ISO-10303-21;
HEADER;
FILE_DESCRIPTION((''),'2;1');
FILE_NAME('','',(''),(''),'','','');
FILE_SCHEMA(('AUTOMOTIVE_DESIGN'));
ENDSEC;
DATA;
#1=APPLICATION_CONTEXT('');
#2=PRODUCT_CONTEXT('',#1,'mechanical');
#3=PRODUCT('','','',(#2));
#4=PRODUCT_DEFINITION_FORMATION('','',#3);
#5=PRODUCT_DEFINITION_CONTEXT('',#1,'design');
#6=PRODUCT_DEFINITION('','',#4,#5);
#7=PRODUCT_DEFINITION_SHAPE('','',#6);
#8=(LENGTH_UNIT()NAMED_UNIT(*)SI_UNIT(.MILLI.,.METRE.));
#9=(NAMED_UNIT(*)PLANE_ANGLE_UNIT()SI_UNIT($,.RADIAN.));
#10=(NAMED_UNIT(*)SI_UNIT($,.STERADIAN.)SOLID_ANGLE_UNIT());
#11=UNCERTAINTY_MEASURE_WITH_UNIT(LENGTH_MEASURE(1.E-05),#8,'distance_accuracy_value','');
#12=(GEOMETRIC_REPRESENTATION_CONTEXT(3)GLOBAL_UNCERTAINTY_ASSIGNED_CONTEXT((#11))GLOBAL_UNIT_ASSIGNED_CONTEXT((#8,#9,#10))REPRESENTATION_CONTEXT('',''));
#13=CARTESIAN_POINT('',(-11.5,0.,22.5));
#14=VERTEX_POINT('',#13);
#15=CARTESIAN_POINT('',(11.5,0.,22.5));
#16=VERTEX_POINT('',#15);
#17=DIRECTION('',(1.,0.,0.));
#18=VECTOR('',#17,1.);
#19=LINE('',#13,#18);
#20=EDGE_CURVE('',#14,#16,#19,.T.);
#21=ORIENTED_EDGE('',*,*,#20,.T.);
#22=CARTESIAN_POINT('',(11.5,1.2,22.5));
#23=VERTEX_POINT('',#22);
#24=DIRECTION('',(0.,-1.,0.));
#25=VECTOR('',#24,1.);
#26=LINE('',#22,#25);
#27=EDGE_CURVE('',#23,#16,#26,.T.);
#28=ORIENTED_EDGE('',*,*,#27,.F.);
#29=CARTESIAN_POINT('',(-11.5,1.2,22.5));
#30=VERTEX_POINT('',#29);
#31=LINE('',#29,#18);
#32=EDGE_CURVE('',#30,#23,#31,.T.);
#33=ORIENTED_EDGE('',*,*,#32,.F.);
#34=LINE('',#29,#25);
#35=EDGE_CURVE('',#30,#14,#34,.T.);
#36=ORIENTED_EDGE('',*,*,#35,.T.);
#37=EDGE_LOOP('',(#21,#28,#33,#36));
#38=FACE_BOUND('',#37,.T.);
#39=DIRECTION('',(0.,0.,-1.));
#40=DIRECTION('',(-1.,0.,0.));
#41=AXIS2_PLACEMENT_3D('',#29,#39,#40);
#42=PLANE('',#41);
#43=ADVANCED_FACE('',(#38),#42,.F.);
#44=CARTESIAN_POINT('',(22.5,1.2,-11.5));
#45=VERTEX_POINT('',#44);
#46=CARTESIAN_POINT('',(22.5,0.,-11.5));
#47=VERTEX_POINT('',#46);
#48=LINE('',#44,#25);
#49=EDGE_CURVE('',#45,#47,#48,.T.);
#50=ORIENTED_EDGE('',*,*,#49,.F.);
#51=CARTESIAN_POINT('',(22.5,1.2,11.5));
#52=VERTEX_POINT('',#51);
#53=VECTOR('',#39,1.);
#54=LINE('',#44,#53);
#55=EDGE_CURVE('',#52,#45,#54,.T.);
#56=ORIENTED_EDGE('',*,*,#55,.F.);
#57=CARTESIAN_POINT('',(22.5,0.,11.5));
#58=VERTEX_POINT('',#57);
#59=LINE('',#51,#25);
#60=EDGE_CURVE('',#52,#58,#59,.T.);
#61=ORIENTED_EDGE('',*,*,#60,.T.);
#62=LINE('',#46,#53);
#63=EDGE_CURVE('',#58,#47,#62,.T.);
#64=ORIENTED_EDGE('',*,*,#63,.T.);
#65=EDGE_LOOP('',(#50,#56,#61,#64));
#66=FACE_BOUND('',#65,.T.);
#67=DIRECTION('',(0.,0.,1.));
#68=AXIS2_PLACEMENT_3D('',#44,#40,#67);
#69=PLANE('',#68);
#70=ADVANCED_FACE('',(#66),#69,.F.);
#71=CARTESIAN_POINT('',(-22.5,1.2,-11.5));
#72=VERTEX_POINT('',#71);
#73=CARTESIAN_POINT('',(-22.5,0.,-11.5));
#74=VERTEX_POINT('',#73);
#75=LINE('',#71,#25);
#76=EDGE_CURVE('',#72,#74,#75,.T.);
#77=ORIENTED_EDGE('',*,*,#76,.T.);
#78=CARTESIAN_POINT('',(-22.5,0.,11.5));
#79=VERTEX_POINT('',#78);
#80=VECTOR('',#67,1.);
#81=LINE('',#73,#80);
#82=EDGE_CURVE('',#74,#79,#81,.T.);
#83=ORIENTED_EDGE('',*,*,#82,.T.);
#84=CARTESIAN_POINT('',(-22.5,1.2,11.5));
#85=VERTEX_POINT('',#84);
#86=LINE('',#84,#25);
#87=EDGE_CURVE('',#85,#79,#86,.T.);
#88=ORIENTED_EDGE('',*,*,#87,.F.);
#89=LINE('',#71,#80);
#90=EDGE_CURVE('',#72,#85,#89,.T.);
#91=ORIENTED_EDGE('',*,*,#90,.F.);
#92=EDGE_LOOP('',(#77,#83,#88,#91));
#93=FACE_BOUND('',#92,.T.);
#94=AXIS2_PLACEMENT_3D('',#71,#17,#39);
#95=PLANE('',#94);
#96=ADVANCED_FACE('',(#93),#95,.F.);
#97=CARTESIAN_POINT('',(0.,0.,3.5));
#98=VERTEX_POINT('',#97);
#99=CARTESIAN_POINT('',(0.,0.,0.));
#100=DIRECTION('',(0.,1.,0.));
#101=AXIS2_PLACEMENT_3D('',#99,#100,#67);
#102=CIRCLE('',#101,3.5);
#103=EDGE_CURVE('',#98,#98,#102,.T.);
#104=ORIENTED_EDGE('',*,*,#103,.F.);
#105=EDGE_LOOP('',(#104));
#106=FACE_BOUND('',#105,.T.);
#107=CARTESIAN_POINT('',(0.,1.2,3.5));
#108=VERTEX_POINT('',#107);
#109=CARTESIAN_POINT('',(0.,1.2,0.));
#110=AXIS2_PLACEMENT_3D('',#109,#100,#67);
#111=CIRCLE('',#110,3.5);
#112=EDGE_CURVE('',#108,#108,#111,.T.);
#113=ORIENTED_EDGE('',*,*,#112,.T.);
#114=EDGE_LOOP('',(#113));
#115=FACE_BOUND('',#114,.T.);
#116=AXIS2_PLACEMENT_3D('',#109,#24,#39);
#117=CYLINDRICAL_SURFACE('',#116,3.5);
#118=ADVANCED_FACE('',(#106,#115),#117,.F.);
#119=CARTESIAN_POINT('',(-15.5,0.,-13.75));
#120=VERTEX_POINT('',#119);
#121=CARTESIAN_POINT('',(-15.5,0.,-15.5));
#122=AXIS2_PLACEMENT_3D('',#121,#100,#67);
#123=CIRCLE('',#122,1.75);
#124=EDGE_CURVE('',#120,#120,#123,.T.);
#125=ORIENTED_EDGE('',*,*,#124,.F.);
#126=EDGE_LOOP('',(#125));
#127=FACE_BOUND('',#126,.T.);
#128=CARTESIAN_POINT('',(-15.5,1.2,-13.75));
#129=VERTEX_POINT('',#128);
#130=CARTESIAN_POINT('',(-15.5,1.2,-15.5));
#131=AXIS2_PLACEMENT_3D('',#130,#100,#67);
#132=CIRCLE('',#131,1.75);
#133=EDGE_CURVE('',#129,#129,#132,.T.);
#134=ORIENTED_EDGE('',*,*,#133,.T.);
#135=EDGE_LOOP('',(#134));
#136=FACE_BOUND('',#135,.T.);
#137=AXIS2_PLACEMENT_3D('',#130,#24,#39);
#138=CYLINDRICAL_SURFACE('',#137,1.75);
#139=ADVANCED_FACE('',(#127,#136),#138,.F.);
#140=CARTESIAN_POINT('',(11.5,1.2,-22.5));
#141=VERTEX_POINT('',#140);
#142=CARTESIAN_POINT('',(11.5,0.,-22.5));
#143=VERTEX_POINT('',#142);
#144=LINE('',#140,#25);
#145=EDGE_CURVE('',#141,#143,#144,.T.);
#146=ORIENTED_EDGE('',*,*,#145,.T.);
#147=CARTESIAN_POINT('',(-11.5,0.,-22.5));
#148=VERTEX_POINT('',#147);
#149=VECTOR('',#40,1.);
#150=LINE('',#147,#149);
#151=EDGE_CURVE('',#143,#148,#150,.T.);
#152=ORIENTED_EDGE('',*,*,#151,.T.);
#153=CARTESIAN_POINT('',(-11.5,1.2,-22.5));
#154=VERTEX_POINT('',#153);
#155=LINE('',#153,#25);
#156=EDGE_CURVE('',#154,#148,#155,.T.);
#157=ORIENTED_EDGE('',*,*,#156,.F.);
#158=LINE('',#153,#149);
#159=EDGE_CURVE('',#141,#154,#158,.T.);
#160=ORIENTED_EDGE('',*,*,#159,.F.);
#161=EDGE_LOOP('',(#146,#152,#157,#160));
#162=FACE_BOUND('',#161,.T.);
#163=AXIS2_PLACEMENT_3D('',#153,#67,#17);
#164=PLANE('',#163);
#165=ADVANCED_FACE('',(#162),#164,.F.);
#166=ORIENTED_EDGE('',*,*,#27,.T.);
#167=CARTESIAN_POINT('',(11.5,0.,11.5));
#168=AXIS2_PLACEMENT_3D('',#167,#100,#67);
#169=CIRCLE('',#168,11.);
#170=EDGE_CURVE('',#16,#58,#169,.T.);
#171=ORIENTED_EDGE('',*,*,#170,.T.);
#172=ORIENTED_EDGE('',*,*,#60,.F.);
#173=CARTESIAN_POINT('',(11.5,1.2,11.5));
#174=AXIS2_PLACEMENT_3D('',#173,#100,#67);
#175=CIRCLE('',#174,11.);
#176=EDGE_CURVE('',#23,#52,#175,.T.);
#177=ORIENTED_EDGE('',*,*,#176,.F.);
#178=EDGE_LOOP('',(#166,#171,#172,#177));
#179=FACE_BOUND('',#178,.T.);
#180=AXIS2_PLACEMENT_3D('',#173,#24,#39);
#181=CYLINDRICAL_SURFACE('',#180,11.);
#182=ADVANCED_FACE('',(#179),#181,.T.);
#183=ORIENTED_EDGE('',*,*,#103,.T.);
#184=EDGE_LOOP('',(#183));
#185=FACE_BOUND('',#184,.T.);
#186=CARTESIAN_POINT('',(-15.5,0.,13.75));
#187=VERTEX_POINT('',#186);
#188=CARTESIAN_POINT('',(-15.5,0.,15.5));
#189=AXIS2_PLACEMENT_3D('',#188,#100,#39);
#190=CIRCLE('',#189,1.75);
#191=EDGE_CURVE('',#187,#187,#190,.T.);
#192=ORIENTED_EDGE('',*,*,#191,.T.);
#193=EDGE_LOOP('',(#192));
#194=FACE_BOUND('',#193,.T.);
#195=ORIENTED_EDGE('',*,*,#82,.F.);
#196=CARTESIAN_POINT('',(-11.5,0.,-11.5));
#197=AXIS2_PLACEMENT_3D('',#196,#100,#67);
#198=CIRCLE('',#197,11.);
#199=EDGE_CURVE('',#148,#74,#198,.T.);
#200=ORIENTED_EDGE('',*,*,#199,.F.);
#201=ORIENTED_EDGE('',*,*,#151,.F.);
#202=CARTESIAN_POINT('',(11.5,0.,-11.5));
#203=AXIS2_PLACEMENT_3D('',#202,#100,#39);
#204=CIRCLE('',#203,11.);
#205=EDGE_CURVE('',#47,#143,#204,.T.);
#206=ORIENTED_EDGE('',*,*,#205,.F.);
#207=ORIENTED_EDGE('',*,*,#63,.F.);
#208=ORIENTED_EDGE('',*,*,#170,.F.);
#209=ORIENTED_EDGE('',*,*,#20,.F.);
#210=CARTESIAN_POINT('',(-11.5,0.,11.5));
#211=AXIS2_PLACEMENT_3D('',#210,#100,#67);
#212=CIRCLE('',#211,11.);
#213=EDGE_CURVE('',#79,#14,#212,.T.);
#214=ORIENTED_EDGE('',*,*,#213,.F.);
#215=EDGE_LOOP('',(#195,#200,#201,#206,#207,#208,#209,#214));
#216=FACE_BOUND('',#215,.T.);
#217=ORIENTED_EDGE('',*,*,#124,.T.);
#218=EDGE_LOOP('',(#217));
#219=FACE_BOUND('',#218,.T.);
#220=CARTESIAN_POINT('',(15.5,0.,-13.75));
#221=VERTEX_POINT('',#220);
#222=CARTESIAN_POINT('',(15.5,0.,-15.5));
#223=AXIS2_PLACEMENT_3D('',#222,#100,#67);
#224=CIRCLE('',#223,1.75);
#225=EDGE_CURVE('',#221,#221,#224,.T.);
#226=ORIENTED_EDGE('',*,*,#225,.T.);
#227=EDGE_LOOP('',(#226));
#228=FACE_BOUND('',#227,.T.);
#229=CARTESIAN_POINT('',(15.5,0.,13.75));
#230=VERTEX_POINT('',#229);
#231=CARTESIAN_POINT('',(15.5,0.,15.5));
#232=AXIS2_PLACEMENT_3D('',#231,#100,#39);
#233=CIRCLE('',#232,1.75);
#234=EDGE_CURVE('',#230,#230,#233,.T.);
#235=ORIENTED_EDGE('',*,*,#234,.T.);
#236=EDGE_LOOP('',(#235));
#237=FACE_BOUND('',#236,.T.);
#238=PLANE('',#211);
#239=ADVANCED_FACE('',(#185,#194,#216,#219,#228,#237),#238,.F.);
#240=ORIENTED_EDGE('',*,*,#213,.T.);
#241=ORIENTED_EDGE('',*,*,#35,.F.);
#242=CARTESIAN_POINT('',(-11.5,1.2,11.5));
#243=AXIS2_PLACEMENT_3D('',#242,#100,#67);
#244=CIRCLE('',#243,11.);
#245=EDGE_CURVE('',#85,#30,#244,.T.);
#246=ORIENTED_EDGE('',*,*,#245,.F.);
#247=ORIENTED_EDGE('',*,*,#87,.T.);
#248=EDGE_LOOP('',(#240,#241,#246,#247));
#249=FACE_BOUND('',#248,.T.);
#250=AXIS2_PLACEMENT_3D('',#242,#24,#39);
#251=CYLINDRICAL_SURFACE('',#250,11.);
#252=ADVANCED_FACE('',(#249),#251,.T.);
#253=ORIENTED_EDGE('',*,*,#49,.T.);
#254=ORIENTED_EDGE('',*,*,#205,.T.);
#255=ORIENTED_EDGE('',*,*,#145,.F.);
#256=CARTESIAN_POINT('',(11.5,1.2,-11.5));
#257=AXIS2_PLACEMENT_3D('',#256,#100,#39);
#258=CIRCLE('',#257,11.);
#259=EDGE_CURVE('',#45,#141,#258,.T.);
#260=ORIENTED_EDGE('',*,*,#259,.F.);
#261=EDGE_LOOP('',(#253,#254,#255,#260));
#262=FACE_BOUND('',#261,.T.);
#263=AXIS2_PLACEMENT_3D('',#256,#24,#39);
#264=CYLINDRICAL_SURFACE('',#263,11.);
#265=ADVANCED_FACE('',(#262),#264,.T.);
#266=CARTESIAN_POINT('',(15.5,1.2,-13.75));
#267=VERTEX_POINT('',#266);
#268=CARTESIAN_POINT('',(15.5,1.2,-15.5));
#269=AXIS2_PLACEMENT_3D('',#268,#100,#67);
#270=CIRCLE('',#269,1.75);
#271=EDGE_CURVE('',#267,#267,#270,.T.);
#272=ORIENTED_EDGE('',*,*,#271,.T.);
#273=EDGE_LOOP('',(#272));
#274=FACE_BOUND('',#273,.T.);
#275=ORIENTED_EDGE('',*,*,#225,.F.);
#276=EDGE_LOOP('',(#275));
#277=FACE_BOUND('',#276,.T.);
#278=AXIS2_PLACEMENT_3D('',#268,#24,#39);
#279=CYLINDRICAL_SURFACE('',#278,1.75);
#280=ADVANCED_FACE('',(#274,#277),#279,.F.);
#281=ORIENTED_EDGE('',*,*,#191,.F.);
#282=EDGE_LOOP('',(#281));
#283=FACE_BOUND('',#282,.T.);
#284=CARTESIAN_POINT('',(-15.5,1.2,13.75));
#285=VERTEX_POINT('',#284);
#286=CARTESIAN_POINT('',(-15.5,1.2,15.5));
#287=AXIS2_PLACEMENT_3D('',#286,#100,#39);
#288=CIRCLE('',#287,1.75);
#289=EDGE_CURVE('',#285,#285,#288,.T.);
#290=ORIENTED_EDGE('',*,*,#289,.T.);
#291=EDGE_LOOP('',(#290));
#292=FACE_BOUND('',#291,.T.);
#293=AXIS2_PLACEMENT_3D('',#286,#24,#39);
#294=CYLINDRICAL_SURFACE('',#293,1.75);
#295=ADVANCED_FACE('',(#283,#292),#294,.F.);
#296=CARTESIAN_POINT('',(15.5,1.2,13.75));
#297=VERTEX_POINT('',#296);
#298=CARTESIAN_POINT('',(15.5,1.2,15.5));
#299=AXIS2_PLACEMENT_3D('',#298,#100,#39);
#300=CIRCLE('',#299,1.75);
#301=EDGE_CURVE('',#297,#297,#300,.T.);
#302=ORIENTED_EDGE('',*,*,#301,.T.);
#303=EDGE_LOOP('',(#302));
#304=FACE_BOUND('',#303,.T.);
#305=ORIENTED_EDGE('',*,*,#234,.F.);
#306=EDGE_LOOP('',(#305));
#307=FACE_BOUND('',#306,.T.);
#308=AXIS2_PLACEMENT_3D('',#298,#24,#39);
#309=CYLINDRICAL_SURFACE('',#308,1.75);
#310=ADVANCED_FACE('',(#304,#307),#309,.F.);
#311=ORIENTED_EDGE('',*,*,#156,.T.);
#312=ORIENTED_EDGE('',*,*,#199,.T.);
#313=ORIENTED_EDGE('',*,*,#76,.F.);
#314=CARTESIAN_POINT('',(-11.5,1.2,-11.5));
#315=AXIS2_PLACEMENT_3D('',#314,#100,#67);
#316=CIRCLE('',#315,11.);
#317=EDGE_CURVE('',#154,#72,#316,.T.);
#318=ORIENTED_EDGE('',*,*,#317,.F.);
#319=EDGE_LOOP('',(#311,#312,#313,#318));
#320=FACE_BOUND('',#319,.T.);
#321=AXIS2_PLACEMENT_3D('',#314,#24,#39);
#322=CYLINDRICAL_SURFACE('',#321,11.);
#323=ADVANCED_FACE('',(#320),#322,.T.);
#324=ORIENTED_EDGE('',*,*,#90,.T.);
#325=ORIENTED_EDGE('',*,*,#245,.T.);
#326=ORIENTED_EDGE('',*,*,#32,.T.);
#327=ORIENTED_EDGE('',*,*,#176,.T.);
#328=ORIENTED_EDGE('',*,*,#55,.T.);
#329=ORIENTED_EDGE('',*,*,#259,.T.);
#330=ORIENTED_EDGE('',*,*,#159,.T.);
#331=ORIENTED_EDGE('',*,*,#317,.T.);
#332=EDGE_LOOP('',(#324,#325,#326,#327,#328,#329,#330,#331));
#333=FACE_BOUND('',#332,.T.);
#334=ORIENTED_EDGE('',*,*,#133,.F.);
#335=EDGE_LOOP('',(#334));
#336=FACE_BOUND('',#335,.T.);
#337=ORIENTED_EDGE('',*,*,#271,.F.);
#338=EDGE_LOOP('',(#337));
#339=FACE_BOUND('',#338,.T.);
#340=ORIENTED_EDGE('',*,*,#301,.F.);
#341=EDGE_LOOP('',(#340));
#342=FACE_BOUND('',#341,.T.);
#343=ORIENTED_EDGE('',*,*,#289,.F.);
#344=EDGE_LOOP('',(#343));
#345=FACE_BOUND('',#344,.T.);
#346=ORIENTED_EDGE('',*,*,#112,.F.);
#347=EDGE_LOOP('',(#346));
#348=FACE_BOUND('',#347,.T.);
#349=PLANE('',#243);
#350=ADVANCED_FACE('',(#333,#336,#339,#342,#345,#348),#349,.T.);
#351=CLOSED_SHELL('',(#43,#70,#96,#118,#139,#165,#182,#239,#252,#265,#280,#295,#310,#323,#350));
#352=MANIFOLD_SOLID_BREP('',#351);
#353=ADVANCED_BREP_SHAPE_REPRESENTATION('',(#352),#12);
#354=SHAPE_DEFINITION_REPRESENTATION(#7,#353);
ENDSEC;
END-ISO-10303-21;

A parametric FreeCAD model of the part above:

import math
import FreeCAD as App
import Part
import Sketcher

V = App.Vector

doc = App.newDocument("Part")
params = doc.addObject("Spreadsheet::Sheet", "Params")
for row, (alias, value) in enumerate([
    ("sketch1_diameter", "7 mm"),
    ("sketch1_radius", "11 mm"),
    ("sketch1_diameter2", "3.5 mm"),
    ("sketch1_width", "23 mm"),
    ("pad1_length", "1.2 mm"),
], start=1):
    params.set(f"A{row}", alias)
    params.set(f"B{row}", "=" + value)
    params.setAlias(f"B{row}", alias)

body = doc.addObject("PartDesign::Body", "Body")

# Sketch on XZ plane
sketch1 = body.newObject("Sketcher::SketchObject", "Sketch")
sketch1.AttachmentSupport = (doc.getObject("XZ_Plane"), [""])
sketch1.MapMode = "FlatFace"
sketch1.addGeometry([
    Part.LineSegment(V(11.5, -22.5, 0), V(-11.5, -22.5, 0)),  # 0
    Part.ArcOfCircle(Part.Circle(V(-11.5, -11.5, 0), V(0, 0, 1), 11), math.radians(180), math.radians(270)),  # 1
    Part.LineSegment(V(-22.5, -11.5, 0), V(-22.5, 11.5, 0)),  # 2
    Part.ArcOfCircle(Part.Circle(V(-11.5, 11.5, 0), V(0, 0, 1), 11), math.radians(90), math.radians(180)),  # 3
    Part.LineSegment(V(-11.5, 22.5, 0), V(11.5, 22.5, 0)),  # 4
    Part.ArcOfCircle(Part.Circle(V(11.5, 11.5, 0), V(0, 0, 1), 11), math.radians(0), math.radians(90)),  # 5
    Part.LineSegment(V(22.5, 11.5, 0), V(22.5, -11.5, 0)),  # 6
    Part.ArcOfCircle(Part.Circle(V(11.5, -11.5, 0), V(0, 0, 1), 11), math.radians(-90), math.radians(0)),  # 7
    Part.Circle(V(15.5, 15.5, 0), V(0, 0, 1), 1.75),  # 8
    Part.Circle(V(-15.5, 15.5, 0), V(0, 0, 1), 1.75),  # 9
    Part.Circle(V(15.5, -15.5, 0), V(0, 0, 1), 1.75),  # 10
    Part.Circle(V(0, 0, 0), V(0, 0, 1), 3.5),  # 11
    Part.Circle(V(-15.5, -15.5, 0), V(0, 0, 1), 1.75),  # 12
], False)
sketch1.addConstraint([
    Sketcher.Constraint("Tangent", 0, 2, 1, 2),
    Sketcher.Constraint("Tangent", 1, 1, 2, 1),
    Sketcher.Constraint("Tangent", 2, 2, 3, 2),
    Sketcher.Constraint("Tangent", 3, 1, 4, 1),
    Sketcher.Constraint("Tangent", 4, 2, 5, 2),
    Sketcher.Constraint("Tangent", 5, 1, 6, 1),
    Sketcher.Constraint("Tangent", 6, 2, 7, 2),
    Sketcher.Constraint("Tangent", 7, 1, 0, 1),
    Sketcher.Constraint("Horizontal", 0),
    Sketcher.Constraint("Vertical", 2),
    Sketcher.Constraint("Horizontal", 4),
    Sketcher.Constraint("Vertical", 6),
    Sketcher.Constraint("Coincident", 11, 3, -1, 1),
    Sketcher.Constraint("Equal", 1, 3),
    Sketcher.Constraint("Equal", 3, 5),
    Sketcher.Constraint("Equal", 5, 7),
    Sketcher.Constraint("Equal", 8, 9),
    Sketcher.Constraint("Equal", 9, 10),
    Sketcher.Constraint("Equal", 10, 12),
    Sketcher.Constraint("Symmetric", 1, 3, 5, 3, -1, 1),
    Sketcher.Constraint("Symmetric", 9, 3, 10, 3, -1, 1),
    Sketcher.Constraint("Symmetric", 8, 3, 12, 3, -1, 1),
    Sketcher.Constraint("Symmetric", 8, 3, 9, 3, -2),
    Sketcher.Constraint("Equal", 4, 2),
    Sketcher.Constraint("Diameter", 11, 7.0),
    Sketcher.Constraint("Radius", 1, 11.0),
    Sketcher.Constraint("Diameter", 8, 3.5),
    Sketcher.Constraint("DistanceX", 0, 2, 0, 1, 23.0),
    Sketcher.Constraint("DistanceX", 5, 3, 8, 3, 4.0),
    Sketcher.Constraint("DistanceY", 5, 3, 8, 3, 4.0),
])
sketch1.setExpression("Constraints[24]", "Params.sketch1_diameter")
sketch1.setExpression("Constraints[25]", "Params.sketch1_radius")
sketch1.setExpression("Constraints[26]", "Params.sketch1_diameter2")
sketch1.setExpression("Constraints[27]", "Params.sketch1_width")
pad1 = body.newObject("PartDesign::Pad", "Pad")
pad1.Profile = sketch1
pad1.setExpression("Length", "Params.pad1_length")
pad1.Reversed = True

doc.recompute()
